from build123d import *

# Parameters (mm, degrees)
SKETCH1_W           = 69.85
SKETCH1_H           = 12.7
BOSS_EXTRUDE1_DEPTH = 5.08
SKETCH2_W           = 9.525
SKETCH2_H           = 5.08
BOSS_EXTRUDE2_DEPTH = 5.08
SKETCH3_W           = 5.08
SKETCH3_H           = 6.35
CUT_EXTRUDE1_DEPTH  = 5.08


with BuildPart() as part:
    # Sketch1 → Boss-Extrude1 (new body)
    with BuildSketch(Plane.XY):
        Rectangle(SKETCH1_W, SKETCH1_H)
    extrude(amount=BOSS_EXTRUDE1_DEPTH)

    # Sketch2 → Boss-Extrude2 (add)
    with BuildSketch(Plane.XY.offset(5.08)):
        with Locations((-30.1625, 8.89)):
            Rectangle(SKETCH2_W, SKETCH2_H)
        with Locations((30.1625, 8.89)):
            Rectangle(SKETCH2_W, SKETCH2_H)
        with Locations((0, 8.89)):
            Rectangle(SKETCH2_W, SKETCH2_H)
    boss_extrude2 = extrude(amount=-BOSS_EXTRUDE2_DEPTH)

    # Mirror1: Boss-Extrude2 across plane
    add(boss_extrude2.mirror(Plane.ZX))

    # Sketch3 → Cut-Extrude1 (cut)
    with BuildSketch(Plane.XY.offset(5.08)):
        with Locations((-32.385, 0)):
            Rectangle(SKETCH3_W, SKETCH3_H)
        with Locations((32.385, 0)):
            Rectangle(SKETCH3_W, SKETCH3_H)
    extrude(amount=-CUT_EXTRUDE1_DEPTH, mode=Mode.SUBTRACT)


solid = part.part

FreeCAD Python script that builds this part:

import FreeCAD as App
import Part
import Sketcher
Q = App.Units.Quantity


def add_polygon(sketch, points):
    """Adds a closed chain of lines whose ends are joined by coincident constraints."""
    first, n = sketch.GeometryCount, len(points)
    for a, b in zip(points, points[1:] + points[:1]):
        sketch.addGeometry(Part.LineSegment(App.Vector(*a, 0), App.Vector(*b, 0)), False)
    for i in range(n):
        sketch.addConstraint(Sketcher.Constraint("Coincident", first + i, 2, first + (i + 1) % n, 1))

doc = App.newDocument("Part")
body = doc.addObject("PartDesign::Body", "Body")

sketch1 = body.newObject("Sketcher::SketchObject", "Sketch")
sketch1.AttachmentSupport = (doc.getObject("XY_Plane"), [""])
sketch1.MapMode = "FlatFace"
add_polygon(sketch1, [(-35, 6), (-35, -6), (35, -6), (35, 6)])
sketch1.addConstraint([
    Sketcher.Constraint("Vertical", 0),
    Sketcher.Constraint("Horizontal", 1),
    Sketcher.Constraint("Vertical", 2),
    Sketcher.Constraint("Horizontal", 3),
    Sketcher.Constraint("Symmetric", 0, 2, 2, 2, -1, 1),
    Sketcher.Constraint("DistanceY", 0, 2, 0, 1, Q("0.5 in")),
    Sketcher.Constraint("DistanceX", 1, 1, 1, 2, Q("2.75 in")),
])
pad1 = body.newObject("PartDesign::Pad", "Pad")
pad1.Profile = sketch1
pad1.Length = Q("0.2 in")

sketch2 = body.newObject("Sketcher::SketchObject", "Sketch001")
sketch2.AttachmentSupport = (doc.getObject("XY_Plane"), [""])
sketch2.MapMode = "FlatFace"
sketch2.AttachmentOffset = App.Placement(App.Vector(0, 0, 0.2 * 25.4), App.Rotation())
add_polygon(sketch2, [(-35, 11), (-35, 6), (-25, 6), (-25, 11)])
add_polygon(sketch2, [(25, 11), (25, 6), (35, 6), (35, 11)])
add_polygon(sketch2, [(-5, 11), (-5, 6), (5, 6), (5, 11)])
sketch2.addConstraint([
    Sketcher.Constraint("Vertical", 0),
    Sketcher.Constraint("Horizontal", 1),
    Sketcher.Constraint("Vertical", 2),
    Sketcher.Constraint("Horizontal", 3),
    Sketcher.Constraint("Vertical", 4),
    Sketcher.Constraint("Horizontal", 5),
    Sketcher.Constraint("Vertical", 6),
    Sketcher.Constraint("Horizontal", 7),
    Sketcher.Constraint("Vertical", 8),
    Sketcher.Constraint("Horizontal", 9),
    Sketcher.Constraint("Vertical", 10),
    Sketcher.Constraint("Horizontal", 11),
    Sketcher.Constraint("Symmetric", 1, 2, 4, 2, -2),
    Sketcher.Constraint("Symmetric", 3, 2, 6, 2, -2),
    Sketcher.Constraint("Horizontal", 5, 2, 8, 2),
    Sketcher.Constraint("Horizontal", 7, 2, 10, 2),
    Sketcher.Constraint("Equal", 7, 9),
    Sketcher.Constraint("DistanceY", 0, 2, 0, 1, Q("0.2 in")),
    Sketcher.Constraint("DistanceX", 1, 2, -1, 1, Q("1 in")),
    Sketcher.Constraint("DistanceX", 1, 1, 1, 2, Q("0.375 in")),
    Sketcher.Constraint("DistanceY", -1, 1, 0, 2, Q("0.25 in")),
    Sketcher.Constraint("DistanceX", 8, 2, -1, 1, Q("0.1875 in")),
])
pad2 = body.newObject("PartDesign::Pad", "Pad001")
pad2.Profile = sketch2
pad2.Length = Q("0.2 in")
pad2.Reversed = True
doc.recompute()

mirrored = body.newObject("PartDesign::Mirrored", "Mirrored")
mirrored.Originals = [pad2]
mirrored.MirrorPlane = (doc.getObject("XZ_Plane"), [""])
body.Tip = mirrored

sketch3 = body.newObject("Sketcher::SketchObject", "Sketch002")
sketch3.AttachmentSupport = (doc.getObject("XY_Plane"), [""])
sketch3.MapMode = "FlatFace"
sketch3.AttachmentOffset = App.Placement(App.Vector(0, 0, 0.2 * 25.4), App.Rotation())
add_polygon(sketch3, [(-35, 3), (-35, -3), (-30, -3), (-30, 3)])
add_polygon(sketch3, [(30, 3), (30, -3), (35, -3), (35, 3)])
sketch3.addConstraint([
    Sketcher.Constraint("Vertical", 0),
    Sketcher.Constraint("Horizontal", 1),
    Sketcher.Constraint("Vertical", 2),
    Sketcher.Constraint("Horizontal", 3),
    Sketcher.Constraint("Vertical", 4),
    Sketcher.Constraint("Horizontal", 5),
    Sketcher.Constraint("Vertical", 6),
    Sketcher.Constraint("Horizontal", 7),
    Sketcher.Constraint("Symmetric", 2, 2, 4, 2, -1, 1),
    Sketcher.Constraint("Symmetric", 0, 2, 6, 2, -1, 1),
    Sketcher.Constraint("Horizontal", 1, 2, 4, 2),
    Sketcher.Constraint("DistanceX", 1, 1, 1, 2, Q("0.2 in")),
    Sketcher.Constraint("DistanceY", 0, 2, 0, 1, Q("0.25 in")),
    Sketcher.Constraint("DistanceX", 1, 2, 4, 2, Q("2.35 in")),
])
pocket1 = body.newObject("PartDesign::Pocket", "Pocket")
pocket1.Profile = sketch3
pocket1.Length = Q("0.2 in")

doc.recompute()
